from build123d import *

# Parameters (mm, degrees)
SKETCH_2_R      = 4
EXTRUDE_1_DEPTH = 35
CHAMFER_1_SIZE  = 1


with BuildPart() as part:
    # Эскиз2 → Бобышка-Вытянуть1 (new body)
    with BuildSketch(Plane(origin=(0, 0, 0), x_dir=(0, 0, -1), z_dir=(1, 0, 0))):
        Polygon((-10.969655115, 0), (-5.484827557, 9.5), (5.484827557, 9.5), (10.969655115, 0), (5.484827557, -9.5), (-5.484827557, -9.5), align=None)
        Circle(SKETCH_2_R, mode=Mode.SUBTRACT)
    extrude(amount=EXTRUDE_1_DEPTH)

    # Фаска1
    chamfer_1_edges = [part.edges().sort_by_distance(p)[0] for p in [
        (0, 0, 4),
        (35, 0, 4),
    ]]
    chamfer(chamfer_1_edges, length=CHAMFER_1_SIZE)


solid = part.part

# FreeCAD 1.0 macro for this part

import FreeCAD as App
import Part
import Sketcher
Q = App.Units.Quantity


def edges_at(feature, points):
    """Names of the edges that pass closest to the given points."""
    edges = feature.Shape.Edges
    near = lambda p: min(range(len(edges)), key=lambda i: edges[i].distToShape(Part.Vertex(*p))[0])
    return sorted({f"Edge{near(p) + 1}" for p in points})

doc = App.newDocument("Part")
body = doc.addObject("PartDesign::Body", "Body")

sketch1 = body.newObject("Sketcher::SketchObject", "Sketch")
sketch1.AttachmentSupport = (doc.getObject("YZ_Plane"), [""])
sketch1.MapMode = "FlatFace"
sketch1.addGeometry([
    Part.LineSegment(App.Vector(9.5, 5.484828, 0), App.Vector(0, 10.969655, 0)),
    Part.LineSegment(App.Vector(0, 10.969655, 0), App.Vector(-9.5, 5.484828, 0)),
    Part.LineSegment(App.Vector(-9.5, 5.484828, 0), App.Vector(-9.5, -5.484828, 0)),
    Part.LineSegment(App.Vector(-9.5, -5.484828, 0), App.Vector(0, -10.969655, 0)),
    Part.LineSegment(App.Vector(0, -10.969655, 0), App.Vector(9.5, -5.484828, 0)),
    Part.LineSegment(App.Vector(9.5, -5.484828, 0), App.Vector(9.5, 5.484828, 0)),
    Part.Circle(App.Vector(0, 0, 0), App.Vector(0, 0, 1), 4),
], False)
sketch1.addConstraint([
    Sketcher.Constraint("Coincident", 0, 2, 1, 1),
    Sketcher.Constraint("Coincident", 1, 2, 2, 1),
    Sketcher.Constraint("Coincident", 2, 2, 3, 1),
    Sketcher.Constraint("Coincident", 3, 2, 4, 1),
    Sketcher.Constraint("Coincident", 4, 2, 5, 1),
    Sketcher.Constraint("Coincident", 5, 2, 0, 1),
    Sketcher.Constraint("Vertical", 2),
    Sketcher.Constraint("Vertical", 5),
    Sketcher.Constraint("Coincident", 6, 3, -1, 1),
    Sketcher.Constraint("Symmetric", 0, 2, 3, 2, -1, 1),
    Sketcher.Constraint("Symmetric", 1, 2, 4, 2, -1, 1),
    Sketcher.Constraint("PointOnObject", 0, 2, -2),
    Sketcher.Constraint("Parallel", 0, 3),
    Sketcher.Constraint("Horizontal", 2, 2, 4, 2),
    Sketcher.Constraint("Diameter", 6, Q("8 mm")),
    Sketcher.Constraint("Angle", 0, Q("150 deg")),
    Sketcher.Constraint("DistanceX", 2, 2, 4, 2, Q("19 mm")),
    Sketcher.Constraint("DistanceY", 2, 2, 2, 1, Q("10.969655 mm")),
])
pad1 = body.newObject("PartDesign::Pad", "Pad")
pad1.Profile = sketch1
pad1.Length = 35
doc.recompute()

chamfer = body.newObject("PartDesign::Chamfer", "Chamfer")
chamfer.Base = (pad1, edges_at(pad1, [(0, 0, 4), (35, 0, 4)]))
chamfer.Size = 1

doc.recompute()
